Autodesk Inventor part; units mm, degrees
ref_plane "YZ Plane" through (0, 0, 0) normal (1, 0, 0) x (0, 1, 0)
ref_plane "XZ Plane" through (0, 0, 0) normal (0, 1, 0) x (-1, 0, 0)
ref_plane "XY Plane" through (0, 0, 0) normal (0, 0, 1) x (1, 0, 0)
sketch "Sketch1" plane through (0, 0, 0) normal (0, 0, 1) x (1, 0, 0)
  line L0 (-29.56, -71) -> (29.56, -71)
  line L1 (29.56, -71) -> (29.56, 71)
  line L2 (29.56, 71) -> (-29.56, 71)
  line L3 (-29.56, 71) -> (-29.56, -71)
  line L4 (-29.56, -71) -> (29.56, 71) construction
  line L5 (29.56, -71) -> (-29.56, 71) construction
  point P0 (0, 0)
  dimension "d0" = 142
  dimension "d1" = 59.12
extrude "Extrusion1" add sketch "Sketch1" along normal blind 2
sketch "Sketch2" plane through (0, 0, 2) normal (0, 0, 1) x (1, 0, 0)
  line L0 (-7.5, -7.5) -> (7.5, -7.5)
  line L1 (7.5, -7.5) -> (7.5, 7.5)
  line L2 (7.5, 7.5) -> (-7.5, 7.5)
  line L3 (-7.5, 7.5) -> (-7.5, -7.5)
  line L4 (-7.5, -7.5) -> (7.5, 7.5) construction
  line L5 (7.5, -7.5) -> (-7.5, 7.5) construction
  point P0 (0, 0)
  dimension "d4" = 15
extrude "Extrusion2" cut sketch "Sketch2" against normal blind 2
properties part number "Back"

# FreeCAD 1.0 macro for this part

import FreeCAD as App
import Part
import Sketcher

doc = App.newDocument("Part")
body = doc.addObject("PartDesign::Body", "Body")

# Sketch on XY plane
sketch1 = body.newObject("Sketcher::SketchObject", "Sketch")
sketch1.AttachmentSupport = (doc.getObject("XY_Plane"), [""])
sketch1.MapMode = "FlatFace"
sketch1.addGeometry([
    Part.LineSegment(App.Vector(-30, 71, 0), App.Vector(-30, -71, 0)),
    Part.LineSegment(App.Vector(-30, -71, 0), App.Vector(30, -71, 0)),
    Part.LineSegment(App.Vector(30, -71, 0), App.Vector(30, 71, 0)),
    Part.LineSegment(App.Vector(30, 71, 0), App.Vector(-30, 71, 0)),
], False)
sketch1.addConstraint([
    Sketcher.Constraint("Coincident", 0, 2, 1, 1),
    Sketcher.Constraint("Coincident", 1, 2, 2, 1),
    Sketcher.Constraint("Coincident", 2, 2, 3, 1),
    Sketcher.Constraint("Coincident", 3, 2, 0, 1),
    Sketcher.Constraint("Vertical", 0),
    Sketcher.Constraint("Horizontal", 1),
    Sketcher.Constraint("Vertical", 2),
    Sketcher.Constraint("Horizontal", 3),
    Sketcher.Constraint("Symmetric", 0, 2, 2, 2, -1, 1),
    Sketcher.Constraint("DistanceY", 0, 2, 0, 1, 142.0),
    Sketcher.Constraint("DistanceX", 1, 1, 1, 2, 59.12),
])
pad1 = body.newObject("PartDesign::Pad", "Pad")
pad1.Profile = sketch1
pad1.Length = 2

# Sketch on XY plane
sketch2 = body.newObject("Sketcher::SketchObject", "Sketch001")
sketch2.AttachmentSupport = (doc.getObject("XY_Plane"), [""])
sketch2.MapMode = "FlatFace"
sketch2.AttachmentOffset = App.Placement(App.Vector(0, 0, 2), App.Rotation())
sketch2.addGeometry([
    Part.LineSegment(App.Vector(-8, 8, 0), App.Vector(-8, -8, 0)),
    Part.LineSegment(App.Vector(-8, -8, 0), App.Vector(8, -8, 0)),
    Part.LineSegment(App.Vector(8, -8, 0), App.Vector(8, 8, 0)),
    Part.LineSegment(App.Vector(8, 8, 0), App.Vector(-8, 8, 0)),
], False)
sketch2.addConstraint([
    Sketcher.Constraint("Coincident", 0, 2, 1, 1),
    Sketcher.Constraint("Coincident", 1, 2, 2, 1),
    Sketcher.Constraint("Coincident", 2, 2, 3, 1),
    Sketcher.Constraint("Coincident", 3, 2, 0, 1),
    Sketcher.Constraint("Vertical", 0),
    Sketcher.Constraint("Horizontal", 1),
    Sketcher.Constraint("Vertical", 2),
    Sketcher.Constraint("Horizontal", 3),
    Sketcher.Constraint("Symmetric", 0, 2, 2, 2, -1, 1),
    Sketcher.Constraint("Equal", 3, 0),
    Sketcher.Constraint("DistanceX", 1, 1, 1, 2, 15.0),
])
pocket1 = body.newObject("PartDesign::Pocket", "Pocket")
pocket1.Profile = sketch2
pocket1.Length = 2

doc.recompute()
